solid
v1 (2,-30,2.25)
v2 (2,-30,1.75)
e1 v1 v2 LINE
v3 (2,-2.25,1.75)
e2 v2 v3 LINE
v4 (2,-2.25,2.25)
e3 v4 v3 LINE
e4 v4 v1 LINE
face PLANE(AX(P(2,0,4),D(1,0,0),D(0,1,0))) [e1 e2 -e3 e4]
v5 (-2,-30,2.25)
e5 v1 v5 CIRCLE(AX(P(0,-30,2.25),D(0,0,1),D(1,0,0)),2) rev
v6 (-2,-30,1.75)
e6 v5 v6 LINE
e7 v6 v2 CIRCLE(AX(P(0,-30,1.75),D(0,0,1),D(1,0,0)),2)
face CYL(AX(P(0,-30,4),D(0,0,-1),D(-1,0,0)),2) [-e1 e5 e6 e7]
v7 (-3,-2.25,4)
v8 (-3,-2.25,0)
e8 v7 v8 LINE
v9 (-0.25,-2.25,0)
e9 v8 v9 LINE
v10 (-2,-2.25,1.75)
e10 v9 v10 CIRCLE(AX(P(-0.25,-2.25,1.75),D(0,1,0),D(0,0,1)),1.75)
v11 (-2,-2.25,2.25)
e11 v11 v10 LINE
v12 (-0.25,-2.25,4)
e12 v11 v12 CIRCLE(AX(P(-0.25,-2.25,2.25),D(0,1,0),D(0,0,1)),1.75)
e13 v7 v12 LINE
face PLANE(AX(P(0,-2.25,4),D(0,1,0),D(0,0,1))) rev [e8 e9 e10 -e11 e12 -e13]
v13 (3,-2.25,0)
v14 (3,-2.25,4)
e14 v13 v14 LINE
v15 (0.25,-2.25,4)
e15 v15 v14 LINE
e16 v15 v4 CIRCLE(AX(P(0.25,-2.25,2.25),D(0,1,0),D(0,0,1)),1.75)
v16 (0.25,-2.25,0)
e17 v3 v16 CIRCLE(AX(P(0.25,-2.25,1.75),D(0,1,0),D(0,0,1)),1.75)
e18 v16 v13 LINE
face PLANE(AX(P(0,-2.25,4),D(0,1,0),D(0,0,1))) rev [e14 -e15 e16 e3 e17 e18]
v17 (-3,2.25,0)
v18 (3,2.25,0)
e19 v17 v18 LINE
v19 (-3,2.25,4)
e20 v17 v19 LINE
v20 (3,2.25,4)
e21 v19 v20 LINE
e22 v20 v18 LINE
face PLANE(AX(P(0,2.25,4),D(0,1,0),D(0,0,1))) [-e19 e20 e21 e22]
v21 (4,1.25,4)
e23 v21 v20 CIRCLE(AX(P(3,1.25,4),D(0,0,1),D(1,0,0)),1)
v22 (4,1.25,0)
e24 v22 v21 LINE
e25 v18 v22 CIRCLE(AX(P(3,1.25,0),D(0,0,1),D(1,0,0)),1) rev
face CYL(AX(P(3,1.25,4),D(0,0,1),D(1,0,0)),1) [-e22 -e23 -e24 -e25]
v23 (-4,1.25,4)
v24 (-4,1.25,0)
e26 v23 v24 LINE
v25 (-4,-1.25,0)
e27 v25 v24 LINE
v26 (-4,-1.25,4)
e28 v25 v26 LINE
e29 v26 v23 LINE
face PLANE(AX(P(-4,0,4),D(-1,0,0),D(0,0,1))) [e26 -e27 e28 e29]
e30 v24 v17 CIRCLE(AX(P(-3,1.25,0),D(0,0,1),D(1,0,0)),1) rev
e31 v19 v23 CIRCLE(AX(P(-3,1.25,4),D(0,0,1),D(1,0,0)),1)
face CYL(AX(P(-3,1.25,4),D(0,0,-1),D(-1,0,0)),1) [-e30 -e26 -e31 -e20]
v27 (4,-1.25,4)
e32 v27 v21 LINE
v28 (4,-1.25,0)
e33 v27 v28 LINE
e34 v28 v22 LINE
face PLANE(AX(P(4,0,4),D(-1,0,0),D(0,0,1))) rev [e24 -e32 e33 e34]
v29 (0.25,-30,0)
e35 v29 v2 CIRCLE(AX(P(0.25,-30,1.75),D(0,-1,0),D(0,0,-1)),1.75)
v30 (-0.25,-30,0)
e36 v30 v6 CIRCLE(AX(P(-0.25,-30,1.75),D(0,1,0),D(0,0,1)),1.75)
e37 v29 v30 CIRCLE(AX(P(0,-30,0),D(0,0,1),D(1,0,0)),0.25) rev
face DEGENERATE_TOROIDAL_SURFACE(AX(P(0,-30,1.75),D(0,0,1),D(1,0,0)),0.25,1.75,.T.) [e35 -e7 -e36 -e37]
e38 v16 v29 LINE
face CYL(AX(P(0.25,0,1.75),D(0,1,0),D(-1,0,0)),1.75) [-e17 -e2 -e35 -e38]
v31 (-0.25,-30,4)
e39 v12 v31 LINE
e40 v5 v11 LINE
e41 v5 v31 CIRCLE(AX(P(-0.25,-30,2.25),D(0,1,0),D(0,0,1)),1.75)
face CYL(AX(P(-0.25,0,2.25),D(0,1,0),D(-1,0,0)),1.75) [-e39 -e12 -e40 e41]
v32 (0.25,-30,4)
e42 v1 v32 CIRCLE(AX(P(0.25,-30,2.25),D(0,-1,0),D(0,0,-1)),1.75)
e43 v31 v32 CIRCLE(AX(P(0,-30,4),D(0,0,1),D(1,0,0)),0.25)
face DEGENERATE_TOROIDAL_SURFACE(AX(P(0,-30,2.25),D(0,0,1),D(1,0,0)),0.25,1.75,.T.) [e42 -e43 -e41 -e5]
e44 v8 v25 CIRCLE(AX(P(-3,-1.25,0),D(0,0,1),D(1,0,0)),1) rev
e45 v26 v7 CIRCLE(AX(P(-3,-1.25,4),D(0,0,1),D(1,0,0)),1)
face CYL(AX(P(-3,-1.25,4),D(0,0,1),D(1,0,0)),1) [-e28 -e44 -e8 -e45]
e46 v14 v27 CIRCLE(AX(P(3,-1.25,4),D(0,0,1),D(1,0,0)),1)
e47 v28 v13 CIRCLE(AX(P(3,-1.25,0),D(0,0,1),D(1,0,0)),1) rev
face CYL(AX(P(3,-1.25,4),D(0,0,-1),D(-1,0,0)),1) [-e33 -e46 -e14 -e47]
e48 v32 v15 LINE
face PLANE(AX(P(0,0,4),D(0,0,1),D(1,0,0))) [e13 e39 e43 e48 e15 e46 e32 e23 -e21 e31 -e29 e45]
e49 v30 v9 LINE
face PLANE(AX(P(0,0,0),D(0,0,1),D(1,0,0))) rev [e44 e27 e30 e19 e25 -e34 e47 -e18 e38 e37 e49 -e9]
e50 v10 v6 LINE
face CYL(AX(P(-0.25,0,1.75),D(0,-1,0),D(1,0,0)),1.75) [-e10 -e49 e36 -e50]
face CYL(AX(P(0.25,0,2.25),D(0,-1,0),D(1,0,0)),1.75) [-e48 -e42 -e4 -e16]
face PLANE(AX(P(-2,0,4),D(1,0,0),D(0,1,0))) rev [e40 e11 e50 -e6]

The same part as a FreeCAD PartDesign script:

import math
import FreeCAD as App
import Part
import Sketcher


def edges_at(feature, points):
    """Names of the edges that pass closest to the given points."""
    edges = feature.Shape.Edges
    near = lambda p: min(range(len(edges)), key=lambda i: edges[i].distToShape(Part.Vertex(*p))[0])
    return sorted({f"Edge{near(p) + 1}" for p in points})

doc = App.newDocument("Part")
body = doc.addObject("PartDesign::Body", "Body")

# Sketch on XY plane
sketch1 = doc.addObject("Sketcher::SketchObject", "Sketch")
body.addObject(sketch1)
sketch1.AttachmentSupport = (doc.XY_Plane, [""])
sketch1.MapMode = "FlatFace"
sketch1.addGeometry(Part.ArcOfCircle(Part.Circle(App.Vector(0, -30, 0), App.Vector(0, 0, 1), 2), math.radians(180), math.radians(360)), False)
sketch1.addGeometry(Part.LineSegment(App.Vector(2, -30, 0), App.Vector(2, -2.2, 0)), False)
sketch1.addGeometry(Part.LineSegment(App.Vector(2, -2.2, 0), App.Vector(4, -2.2, 0)), False)
sketch1.addGeometry(Part.LineSegment(App.Vector(4, -2.2, 0), App.Vector(4, 2.2, 0)), False)
sketch1.addGeometry(Part.LineSegment(App.Vector(4, 2.2, 0), App.Vector(-4, 2.2, 0)), False)
sketch1.addGeometry(Part.LineSegment(App.Vector(-4, 2.2, 0), App.Vector(-4, -2.2, 0)), False)
sketch1.addGeometry(Part.LineSegment(App.Vector(-4, -2.2, 0), App.Vector(-2, -2.2, 0)), False)
sketch1.addGeometry(Part.LineSegment(App.Vector(-2, -2.2, 0), App.Vector(-2, -30, 0)), False)
sketch1.addConstraint(Sketcher.Constraint("Tangent", 0, 2, 1, 1))
sketch1.addConstraint(Sketcher.Constraint("Coincident", 1, 2, 2, 1))
sketch1.addConstraint(Sketcher.Constraint("Coincident", 2, 2, 3, 1))
sketch1.addConstraint(Sketcher.Constraint("Coincident", 3, 2, 4, 1))
sketch1.addConstraint(Sketcher.Constraint("Coincident", 4, 2, 5, 1))
sketch1.addConstraint(Sketcher.Constraint("Coincident", 5, 2, 6, 1))
sketch1.addConstraint(Sketcher.Constraint("Coincident", 6, 2, 7, 1))
sketch1.addConstraint(Sketcher.Constraint("Tangent", 7, 2, 0, 1))
sketch1.addConstraint(Sketcher.Constraint("Vertical", 1))
sketch1.addConstraint(Sketcher.Constraint("Horizontal", 2))
sketch1.addConstraint(Sketcher.Constraint("Vertical", 3))
sketch1.addConstraint(Sketcher.Constraint("Horizontal", 4))
sketch1.addConstraint(Sketcher.Constraint("Vertical", 5))
sketch1.addConstraint(Sketcher.Constraint("Horizontal", 6))
sketch1.addConstraint(Sketcher.Constraint("Vertical", 7))
sketch1.addConstraint(Sketcher.Constraint("Symmetric", 2, 2, 4, 2, -1, 1))
sketch1.addConstraint(Sketcher.Constraint("Symmetric", 1, 2, 6, 2, -2))
sketch1.addConstraint(Sketcher.Constraint("Radius", 0, 2.0))
sketch1.addConstraint(Sketcher.Constraint("DistanceX", 2, 1, 2, 2, 2.0))
sketch1.addConstraint(Sketcher.Constraint("DistanceY", 3, 1, 3, 2, 4.5))
sketch1.addConstraint(Sketcher.Constraint("DistanceY", 0, 3, -1, 1, 30.0))
pad1 = doc.addObject("PartDesign::Pad", "Pad")
body.addObject(pad1)
pad1.Profile = sketch1
pad1.Length = 4
doc.recompute()

fillet = doc.addObject("PartDesign::Fillet", "Fillet")
body.addObject(fillet)
fillet.Base = (pad1, edges_at(pad1, [
    (2, -16.125, 0),
    (0, -32, 0),
    (-2, -16.125, 0),
    (0, -32, 4),
    (2, -16.125, 4),
    (-2, -16.125, 4),
]))
fillet.Radius = 1.75
doc.recompute()

fillet2 = doc.addObject("PartDesign::Fillet", "Fillet001")
body.addObject(fillet2)
fillet2.Base = (fillet, edges_at(fillet, [
    (-4, -2.25, 2),
    (-4, 2.25, 2),
    (4, 2.25, 2),
    (4, -2.25, 2),
]))
fillet2.Radius = 1

doc.recompute()
